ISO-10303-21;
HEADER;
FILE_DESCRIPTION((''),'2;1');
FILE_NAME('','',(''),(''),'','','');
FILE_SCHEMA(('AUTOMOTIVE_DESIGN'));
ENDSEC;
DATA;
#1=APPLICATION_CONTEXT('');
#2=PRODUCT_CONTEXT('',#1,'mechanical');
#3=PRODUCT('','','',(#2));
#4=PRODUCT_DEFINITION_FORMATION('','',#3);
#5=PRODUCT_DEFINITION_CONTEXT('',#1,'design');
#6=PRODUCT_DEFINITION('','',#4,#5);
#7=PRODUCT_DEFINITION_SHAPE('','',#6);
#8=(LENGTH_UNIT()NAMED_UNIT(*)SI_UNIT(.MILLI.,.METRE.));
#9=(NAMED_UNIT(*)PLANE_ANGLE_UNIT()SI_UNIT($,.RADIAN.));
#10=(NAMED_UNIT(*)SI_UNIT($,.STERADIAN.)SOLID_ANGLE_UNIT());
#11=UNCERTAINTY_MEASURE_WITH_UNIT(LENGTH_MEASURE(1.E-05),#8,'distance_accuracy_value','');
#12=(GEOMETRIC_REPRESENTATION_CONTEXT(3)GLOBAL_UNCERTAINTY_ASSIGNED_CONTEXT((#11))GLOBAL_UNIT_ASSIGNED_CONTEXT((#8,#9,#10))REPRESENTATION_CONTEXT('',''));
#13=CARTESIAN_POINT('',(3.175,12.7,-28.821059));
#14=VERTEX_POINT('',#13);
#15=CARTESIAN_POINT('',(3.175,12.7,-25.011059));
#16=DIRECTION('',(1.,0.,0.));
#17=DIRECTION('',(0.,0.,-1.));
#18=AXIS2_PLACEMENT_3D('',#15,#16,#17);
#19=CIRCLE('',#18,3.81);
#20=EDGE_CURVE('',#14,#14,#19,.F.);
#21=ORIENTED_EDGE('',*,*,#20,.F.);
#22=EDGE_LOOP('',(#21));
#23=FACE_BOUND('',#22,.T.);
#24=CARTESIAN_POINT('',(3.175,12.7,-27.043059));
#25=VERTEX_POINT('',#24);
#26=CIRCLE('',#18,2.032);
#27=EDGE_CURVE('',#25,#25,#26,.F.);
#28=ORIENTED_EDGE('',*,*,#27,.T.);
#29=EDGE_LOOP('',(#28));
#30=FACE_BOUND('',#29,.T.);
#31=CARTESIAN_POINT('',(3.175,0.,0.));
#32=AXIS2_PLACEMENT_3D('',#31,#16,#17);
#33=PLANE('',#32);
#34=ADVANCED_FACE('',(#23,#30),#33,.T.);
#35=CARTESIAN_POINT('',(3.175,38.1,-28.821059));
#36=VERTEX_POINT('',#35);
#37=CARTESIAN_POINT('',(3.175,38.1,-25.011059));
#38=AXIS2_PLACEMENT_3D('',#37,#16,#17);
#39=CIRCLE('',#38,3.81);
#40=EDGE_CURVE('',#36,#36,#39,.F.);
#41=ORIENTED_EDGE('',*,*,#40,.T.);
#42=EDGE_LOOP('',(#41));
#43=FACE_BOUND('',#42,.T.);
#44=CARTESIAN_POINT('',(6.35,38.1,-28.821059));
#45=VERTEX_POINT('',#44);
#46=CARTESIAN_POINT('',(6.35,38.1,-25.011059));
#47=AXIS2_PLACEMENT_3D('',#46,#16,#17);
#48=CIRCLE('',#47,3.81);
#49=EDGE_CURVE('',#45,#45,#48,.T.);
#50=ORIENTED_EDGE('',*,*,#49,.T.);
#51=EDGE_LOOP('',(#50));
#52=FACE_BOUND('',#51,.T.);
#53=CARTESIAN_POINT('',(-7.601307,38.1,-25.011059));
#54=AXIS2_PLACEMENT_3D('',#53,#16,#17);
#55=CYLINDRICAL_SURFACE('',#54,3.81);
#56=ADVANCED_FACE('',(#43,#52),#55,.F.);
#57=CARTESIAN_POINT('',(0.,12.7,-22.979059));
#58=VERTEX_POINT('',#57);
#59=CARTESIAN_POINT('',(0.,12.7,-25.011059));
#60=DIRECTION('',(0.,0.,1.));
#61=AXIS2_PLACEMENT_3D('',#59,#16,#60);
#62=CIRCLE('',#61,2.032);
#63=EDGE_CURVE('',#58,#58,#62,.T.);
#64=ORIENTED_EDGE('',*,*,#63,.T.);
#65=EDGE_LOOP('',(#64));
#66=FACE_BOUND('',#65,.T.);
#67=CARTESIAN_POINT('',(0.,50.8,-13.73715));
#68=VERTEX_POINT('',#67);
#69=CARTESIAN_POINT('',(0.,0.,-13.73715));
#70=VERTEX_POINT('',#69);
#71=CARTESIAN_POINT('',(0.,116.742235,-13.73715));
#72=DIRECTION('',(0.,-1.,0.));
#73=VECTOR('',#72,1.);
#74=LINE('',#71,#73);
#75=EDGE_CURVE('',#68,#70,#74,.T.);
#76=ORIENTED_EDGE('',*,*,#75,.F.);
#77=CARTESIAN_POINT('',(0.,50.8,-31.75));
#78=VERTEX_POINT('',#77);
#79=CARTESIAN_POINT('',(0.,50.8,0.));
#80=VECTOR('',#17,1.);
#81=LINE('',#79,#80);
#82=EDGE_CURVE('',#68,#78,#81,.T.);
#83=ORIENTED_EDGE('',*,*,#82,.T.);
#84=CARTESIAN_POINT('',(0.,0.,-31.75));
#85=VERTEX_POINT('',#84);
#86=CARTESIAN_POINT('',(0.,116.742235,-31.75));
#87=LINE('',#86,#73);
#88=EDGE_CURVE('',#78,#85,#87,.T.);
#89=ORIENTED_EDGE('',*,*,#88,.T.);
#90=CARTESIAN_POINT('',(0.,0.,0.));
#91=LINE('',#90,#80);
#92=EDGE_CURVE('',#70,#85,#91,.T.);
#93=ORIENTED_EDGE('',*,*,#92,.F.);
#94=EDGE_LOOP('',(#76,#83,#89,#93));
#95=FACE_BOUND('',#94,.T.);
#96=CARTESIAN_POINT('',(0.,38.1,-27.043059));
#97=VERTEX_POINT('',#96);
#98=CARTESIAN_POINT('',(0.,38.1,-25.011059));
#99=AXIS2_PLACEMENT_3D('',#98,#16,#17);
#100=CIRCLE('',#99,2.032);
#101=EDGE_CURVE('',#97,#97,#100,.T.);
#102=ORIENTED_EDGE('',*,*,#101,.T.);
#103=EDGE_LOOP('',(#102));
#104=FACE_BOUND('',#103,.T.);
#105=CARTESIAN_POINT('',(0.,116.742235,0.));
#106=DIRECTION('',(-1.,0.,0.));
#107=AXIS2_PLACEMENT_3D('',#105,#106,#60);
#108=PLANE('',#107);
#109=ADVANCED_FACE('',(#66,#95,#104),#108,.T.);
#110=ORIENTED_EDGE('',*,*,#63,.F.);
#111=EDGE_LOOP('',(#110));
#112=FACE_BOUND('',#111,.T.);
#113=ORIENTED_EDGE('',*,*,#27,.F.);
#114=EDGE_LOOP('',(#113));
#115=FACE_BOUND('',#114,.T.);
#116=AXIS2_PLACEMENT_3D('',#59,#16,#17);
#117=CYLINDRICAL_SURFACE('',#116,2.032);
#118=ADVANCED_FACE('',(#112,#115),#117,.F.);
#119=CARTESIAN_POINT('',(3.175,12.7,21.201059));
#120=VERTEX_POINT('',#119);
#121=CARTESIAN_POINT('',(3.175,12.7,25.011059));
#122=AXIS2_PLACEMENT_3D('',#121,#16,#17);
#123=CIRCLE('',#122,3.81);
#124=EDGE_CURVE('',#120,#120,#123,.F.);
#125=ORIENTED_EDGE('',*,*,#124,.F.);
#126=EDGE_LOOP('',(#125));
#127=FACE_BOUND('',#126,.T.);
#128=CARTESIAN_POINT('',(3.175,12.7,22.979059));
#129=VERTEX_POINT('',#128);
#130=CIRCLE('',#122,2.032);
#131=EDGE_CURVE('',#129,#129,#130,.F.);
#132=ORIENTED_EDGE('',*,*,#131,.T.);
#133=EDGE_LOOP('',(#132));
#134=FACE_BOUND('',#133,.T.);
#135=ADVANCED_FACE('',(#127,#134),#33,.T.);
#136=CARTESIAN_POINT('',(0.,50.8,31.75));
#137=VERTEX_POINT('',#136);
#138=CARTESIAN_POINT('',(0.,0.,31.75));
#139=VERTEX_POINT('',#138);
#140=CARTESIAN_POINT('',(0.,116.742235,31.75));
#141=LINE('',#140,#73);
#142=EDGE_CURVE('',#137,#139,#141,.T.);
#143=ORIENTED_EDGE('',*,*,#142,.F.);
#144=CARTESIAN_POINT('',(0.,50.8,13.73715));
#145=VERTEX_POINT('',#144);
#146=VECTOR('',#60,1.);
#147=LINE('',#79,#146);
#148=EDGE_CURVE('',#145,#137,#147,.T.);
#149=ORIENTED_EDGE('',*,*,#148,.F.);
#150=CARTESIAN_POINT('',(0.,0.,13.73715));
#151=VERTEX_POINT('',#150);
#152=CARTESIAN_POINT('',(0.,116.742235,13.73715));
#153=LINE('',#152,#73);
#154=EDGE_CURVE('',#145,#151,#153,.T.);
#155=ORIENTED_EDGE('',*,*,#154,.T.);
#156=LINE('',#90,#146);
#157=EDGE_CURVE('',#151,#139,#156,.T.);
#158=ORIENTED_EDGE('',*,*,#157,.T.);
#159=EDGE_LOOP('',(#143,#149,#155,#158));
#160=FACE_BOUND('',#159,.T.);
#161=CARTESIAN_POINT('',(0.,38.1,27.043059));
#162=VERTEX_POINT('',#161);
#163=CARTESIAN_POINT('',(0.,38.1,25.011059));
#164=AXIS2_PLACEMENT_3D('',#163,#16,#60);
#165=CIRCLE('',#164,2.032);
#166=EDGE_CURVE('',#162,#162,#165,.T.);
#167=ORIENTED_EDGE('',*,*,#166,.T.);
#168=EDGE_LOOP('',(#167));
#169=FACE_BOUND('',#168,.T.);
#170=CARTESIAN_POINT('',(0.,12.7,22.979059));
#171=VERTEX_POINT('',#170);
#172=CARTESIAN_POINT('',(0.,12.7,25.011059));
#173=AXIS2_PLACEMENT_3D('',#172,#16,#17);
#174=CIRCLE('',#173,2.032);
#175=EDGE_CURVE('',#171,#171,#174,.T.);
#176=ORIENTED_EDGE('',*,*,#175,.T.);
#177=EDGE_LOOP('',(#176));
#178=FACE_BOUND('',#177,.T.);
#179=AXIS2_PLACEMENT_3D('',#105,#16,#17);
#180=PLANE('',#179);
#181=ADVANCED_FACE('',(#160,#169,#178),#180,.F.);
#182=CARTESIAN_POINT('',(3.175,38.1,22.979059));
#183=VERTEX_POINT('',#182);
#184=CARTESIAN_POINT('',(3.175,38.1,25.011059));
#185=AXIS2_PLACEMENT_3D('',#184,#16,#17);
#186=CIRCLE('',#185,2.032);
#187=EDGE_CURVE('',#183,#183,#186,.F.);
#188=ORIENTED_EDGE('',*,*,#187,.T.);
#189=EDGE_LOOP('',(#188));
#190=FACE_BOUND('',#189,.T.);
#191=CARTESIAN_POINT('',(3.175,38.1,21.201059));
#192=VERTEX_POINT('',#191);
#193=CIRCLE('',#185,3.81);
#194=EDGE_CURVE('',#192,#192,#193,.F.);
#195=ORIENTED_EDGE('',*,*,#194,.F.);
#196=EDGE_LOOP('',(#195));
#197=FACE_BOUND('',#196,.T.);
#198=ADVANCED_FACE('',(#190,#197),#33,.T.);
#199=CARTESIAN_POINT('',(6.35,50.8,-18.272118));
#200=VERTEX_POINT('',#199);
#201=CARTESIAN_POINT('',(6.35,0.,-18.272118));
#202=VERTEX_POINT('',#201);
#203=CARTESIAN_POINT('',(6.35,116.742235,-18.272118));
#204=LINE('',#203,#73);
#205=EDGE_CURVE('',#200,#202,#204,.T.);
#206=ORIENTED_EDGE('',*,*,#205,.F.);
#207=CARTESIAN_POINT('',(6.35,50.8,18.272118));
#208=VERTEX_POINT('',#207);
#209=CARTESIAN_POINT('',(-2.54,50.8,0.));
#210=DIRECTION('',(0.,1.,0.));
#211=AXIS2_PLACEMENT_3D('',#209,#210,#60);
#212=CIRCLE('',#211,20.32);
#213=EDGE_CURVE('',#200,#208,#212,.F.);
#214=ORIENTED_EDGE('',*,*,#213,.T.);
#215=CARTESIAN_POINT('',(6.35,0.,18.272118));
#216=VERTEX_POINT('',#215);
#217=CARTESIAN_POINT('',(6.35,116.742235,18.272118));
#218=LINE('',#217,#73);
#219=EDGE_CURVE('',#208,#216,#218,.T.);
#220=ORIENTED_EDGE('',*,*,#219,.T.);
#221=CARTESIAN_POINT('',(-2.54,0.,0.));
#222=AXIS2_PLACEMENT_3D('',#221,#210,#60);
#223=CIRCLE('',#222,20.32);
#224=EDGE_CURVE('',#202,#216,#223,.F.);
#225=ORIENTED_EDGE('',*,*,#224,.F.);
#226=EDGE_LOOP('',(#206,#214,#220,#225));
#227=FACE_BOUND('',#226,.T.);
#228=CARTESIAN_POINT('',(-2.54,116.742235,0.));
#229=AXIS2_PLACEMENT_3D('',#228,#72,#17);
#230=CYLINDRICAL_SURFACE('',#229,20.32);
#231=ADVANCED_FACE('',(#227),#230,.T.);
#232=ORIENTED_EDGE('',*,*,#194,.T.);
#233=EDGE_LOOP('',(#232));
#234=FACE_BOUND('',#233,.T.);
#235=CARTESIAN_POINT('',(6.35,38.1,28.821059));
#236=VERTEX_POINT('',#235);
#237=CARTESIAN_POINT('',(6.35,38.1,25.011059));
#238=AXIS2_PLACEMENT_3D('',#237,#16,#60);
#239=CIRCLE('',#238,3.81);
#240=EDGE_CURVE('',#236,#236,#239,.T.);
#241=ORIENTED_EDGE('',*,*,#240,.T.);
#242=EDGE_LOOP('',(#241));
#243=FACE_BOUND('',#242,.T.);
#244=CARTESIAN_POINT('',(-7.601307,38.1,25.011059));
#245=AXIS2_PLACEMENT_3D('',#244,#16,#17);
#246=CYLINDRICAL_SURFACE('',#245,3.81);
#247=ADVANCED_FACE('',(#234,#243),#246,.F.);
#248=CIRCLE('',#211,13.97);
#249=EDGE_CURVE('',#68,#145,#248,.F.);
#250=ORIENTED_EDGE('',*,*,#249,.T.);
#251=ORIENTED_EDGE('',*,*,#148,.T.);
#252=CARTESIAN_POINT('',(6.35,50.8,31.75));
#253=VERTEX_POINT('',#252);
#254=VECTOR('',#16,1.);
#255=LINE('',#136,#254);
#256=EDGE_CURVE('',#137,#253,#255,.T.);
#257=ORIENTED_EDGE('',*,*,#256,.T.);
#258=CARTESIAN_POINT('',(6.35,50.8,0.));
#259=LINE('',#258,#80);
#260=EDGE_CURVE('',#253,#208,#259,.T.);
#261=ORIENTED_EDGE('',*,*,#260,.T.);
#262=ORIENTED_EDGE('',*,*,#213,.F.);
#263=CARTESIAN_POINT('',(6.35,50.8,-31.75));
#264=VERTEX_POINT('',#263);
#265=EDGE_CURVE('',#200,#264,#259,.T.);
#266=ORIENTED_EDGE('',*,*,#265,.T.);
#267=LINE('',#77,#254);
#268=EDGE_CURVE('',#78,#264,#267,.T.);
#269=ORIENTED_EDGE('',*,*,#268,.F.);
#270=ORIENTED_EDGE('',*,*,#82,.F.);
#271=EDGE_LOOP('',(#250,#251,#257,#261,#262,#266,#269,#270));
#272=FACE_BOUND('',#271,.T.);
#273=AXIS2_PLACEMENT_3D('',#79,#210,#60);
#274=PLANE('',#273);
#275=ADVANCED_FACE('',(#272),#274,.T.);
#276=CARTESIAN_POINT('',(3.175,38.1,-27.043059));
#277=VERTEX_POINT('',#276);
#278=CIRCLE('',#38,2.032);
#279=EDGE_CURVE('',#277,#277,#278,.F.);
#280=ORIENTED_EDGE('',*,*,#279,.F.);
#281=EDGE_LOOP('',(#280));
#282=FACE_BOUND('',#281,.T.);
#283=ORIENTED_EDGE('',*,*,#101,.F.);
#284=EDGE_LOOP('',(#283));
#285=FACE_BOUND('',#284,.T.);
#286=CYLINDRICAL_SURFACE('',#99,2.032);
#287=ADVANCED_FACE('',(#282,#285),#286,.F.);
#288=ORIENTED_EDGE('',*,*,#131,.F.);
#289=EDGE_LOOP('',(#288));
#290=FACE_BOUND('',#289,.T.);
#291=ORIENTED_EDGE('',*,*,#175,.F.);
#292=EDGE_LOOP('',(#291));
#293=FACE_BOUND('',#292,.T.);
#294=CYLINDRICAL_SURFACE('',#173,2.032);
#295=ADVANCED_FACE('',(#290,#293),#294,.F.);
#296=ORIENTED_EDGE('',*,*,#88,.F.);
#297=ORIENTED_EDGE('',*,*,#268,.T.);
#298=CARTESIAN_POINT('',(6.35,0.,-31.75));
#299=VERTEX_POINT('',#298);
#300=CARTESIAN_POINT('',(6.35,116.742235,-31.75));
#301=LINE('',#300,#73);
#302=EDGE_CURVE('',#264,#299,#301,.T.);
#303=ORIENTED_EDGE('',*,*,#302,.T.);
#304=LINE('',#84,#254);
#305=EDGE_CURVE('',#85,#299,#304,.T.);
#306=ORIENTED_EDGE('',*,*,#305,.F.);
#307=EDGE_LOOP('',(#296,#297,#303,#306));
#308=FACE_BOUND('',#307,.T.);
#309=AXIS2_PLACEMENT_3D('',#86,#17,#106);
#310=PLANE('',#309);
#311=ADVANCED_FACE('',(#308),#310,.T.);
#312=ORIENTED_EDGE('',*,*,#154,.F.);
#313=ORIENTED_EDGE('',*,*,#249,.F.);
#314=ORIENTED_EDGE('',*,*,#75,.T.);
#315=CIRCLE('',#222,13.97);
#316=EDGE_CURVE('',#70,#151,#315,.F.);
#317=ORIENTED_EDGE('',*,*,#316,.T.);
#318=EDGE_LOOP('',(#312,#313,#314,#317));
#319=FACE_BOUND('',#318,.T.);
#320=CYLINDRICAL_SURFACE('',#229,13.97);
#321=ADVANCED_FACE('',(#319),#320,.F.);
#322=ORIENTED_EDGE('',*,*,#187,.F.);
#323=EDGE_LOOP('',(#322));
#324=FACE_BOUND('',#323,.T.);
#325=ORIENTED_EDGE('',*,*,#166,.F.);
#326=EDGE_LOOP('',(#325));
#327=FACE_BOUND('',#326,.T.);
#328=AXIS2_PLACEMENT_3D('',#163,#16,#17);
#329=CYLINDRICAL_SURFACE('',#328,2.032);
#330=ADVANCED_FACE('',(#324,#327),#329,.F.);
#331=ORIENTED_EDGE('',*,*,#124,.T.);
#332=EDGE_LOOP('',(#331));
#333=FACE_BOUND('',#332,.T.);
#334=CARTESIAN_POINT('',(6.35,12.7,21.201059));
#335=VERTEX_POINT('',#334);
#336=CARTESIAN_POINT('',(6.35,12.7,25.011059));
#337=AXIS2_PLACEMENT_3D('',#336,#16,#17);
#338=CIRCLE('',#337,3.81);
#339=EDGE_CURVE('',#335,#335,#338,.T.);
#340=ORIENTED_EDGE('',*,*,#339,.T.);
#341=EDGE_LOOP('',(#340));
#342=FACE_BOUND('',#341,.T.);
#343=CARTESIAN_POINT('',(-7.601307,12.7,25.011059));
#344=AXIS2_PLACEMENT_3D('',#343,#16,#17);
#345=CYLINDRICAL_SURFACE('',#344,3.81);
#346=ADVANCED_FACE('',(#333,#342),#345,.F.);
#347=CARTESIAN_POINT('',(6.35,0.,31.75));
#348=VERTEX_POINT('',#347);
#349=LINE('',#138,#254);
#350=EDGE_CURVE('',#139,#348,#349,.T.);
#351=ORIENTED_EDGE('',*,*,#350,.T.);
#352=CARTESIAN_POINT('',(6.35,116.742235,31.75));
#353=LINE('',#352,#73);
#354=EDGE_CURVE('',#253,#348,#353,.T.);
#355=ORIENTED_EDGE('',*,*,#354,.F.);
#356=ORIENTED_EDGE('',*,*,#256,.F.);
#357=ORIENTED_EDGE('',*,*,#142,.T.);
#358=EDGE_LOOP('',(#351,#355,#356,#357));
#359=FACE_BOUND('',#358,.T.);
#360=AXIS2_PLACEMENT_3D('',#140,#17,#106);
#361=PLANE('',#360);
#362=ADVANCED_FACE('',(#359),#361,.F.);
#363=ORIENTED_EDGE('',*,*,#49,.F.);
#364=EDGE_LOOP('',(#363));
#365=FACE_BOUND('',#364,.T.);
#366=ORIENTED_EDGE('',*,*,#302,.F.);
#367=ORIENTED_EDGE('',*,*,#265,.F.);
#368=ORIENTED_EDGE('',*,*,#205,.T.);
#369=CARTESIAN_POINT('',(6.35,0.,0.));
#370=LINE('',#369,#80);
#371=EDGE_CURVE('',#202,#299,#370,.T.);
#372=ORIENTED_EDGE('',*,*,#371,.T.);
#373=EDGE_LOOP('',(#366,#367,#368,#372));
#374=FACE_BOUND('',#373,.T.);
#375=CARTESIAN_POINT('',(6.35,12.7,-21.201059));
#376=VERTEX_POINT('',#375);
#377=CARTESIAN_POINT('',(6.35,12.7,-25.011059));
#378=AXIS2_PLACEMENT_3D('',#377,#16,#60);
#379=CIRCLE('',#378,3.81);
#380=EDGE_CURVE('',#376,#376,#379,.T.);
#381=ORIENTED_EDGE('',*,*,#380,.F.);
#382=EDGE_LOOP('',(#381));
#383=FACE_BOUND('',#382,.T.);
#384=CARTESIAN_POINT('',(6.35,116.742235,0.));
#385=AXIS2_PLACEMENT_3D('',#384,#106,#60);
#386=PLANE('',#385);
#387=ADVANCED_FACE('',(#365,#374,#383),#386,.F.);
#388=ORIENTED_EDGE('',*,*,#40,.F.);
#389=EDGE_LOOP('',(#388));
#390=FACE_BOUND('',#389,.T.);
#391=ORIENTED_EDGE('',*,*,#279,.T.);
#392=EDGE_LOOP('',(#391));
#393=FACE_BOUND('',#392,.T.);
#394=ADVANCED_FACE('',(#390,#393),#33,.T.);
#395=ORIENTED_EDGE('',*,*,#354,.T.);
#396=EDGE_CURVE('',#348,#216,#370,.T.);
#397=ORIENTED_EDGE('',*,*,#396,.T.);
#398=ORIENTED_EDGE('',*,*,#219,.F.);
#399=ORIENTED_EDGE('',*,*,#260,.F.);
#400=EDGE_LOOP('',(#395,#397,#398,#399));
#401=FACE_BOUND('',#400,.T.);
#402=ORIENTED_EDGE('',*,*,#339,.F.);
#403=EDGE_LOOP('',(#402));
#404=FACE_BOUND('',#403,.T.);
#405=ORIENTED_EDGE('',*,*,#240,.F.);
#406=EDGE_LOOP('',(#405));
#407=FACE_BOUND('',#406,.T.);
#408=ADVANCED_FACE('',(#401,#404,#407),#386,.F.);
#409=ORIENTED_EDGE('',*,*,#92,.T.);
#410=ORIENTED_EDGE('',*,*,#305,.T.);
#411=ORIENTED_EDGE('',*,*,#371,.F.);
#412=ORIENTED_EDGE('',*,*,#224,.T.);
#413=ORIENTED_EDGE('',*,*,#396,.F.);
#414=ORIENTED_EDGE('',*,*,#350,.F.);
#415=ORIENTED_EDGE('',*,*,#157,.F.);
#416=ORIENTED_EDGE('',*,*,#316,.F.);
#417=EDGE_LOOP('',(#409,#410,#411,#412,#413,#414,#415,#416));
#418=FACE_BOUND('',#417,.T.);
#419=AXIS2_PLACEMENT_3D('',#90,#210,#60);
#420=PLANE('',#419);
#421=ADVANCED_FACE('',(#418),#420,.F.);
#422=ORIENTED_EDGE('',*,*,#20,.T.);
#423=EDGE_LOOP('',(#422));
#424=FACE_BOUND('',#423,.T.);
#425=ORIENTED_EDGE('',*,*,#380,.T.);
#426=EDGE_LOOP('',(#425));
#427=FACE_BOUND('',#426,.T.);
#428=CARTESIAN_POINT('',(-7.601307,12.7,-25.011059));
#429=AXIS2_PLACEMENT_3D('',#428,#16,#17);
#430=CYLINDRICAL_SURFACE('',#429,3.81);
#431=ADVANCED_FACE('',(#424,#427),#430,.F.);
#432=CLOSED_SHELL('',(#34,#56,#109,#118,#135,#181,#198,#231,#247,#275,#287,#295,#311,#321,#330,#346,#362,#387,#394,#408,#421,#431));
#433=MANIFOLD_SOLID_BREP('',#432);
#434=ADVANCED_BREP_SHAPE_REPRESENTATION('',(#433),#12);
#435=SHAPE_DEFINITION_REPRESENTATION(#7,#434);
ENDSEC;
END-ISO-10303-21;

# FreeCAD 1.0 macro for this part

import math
import FreeCAD as App
import Part
import Sketcher

V = App.Vector
Q = App.Units.Quantity

doc = App.newDocument("Part")
body = doc.addObject("PartDesign::Body", "Body")

# Sketch on XZ plane
sketch1 = body.newObject("Sketcher::SketchObject", "Sketch")
sketch1.AttachmentSupport = (doc.getObject("XZ_Plane"), [""])
sketch1.MapMode = "FlatFace"
sketch1.addGeometry(Part.ArcOfCircle(Part.Circle(V(-2.54, 0, 0), V(0, 0, 1), 20.32), math.radians(-64.05552), math.radians(64.05552)), False)
sketch1.addGeometry(Part.LineSegment(V(6.35, -18.272118, 0), V(6.35, -31.75, 0)), False)
sketch1.addGeometry(Part.LineSegment(V(6.35, -31.75, 0), V(0, -31.75, 0)), False)
sketch1.addGeometry(Part.LineSegment(V(0, -31.75, 0), V(0, -13.73715, 0)), False)
sketch1.addGeometry(Part.ArcOfCircle(Part.Circle(V(-2.54, 0, 0), V(0, 0, 1), 13.97), math.radians(-79.524318), math.radians(79.524318)), False)
sketch1.addGeometry(Part.LineSegment(V(0, 13.73715, 0), V(0, 31.75, 0)), False)
sketch1.addGeometry(Part.LineSegment(V(0, 31.75, 0), V(6.35, 31.75, 0)), False)
sketch1.addGeometry(Part.LineSegment(V(6.35, 31.75, 0), V(6.35, 18.272118, 0)), False)
sketch1.addConstraint(Sketcher.Constraint("Coincident", 0, 1, 1, 1))
sketch1.addConstraint(Sketcher.Constraint("Coincident", 1, 2, 2, 1))
sketch1.addConstraint(Sketcher.Constraint("Coincident", 2, 2, 3, 1))
sketch1.addConstraint(Sketcher.Constraint("Coincident", 3, 2, 4, 1))
sketch1.addConstraint(Sketcher.Constraint("Coincident", 4, 2, 5, 1))
sketch1.addConstraint(Sketcher.Constraint("Coincident", 5, 2, 6, 1))
sketch1.addConstraint(Sketcher.Constraint("Coincident", 6, 2, 7, 1))
sketch1.addConstraint(Sketcher.Constraint("Coincident", 7, 2, 0, 2))
sketch1.addConstraint(Sketcher.Constraint("Vertical", 1))
sketch1.addConstraint(Sketcher.Constraint("Horizontal", 2))
sketch1.addConstraint(Sketcher.Constraint("Vertical", 3))
sketch1.addConstraint(Sketcher.Constraint("Vertical", 5))
sketch1.addConstraint(Sketcher.Constraint("Horizontal", 6))
sketch1.addConstraint(Sketcher.Constraint("Vertical", 7))
sketch1.addConstraint(Sketcher.Constraint("Coincident", 4, 3, 0, 3))
sketch1.addConstraint(Sketcher.Constraint("Symmetric", 3, 2, 4, 2, -1, 1))
sketch1.addConstraint(Sketcher.Constraint("Symmetric", 2, 2, 5, 2, -1))
sketch1.addConstraint(Sketcher.Constraint("Vertical", 1, 2, 6, 2))
sketch1.addConstraint(Sketcher.Constraint("Radius", 0, Q("0.8 in")))
sketch1.addConstraint(Sketcher.Constraint("Radius", 4, Q("0.55 in")))
sketch1.addConstraint(Sketcher.Constraint("DistanceX", 2, 2, 2, 1, Q("0.25 in")))
sketch1.addConstraint(Sketcher.Constraint("DistanceX", 0, 3, -1, 1, Q("0.1 in")))
sketch1.addConstraint(Sketcher.Constraint("DistanceY", 1, 2, -1, 1, Q("1.25 in")))
pad1 = body.newObject("PartDesign::Pad", "Pad")
pad1.Profile = sketch1
pad1.Length = Q("2 in")
pad1.Reversed = True

# Sketch on YZ plane
sketch2 = body.newObject("Sketcher::SketchObject", "Sketch001")
sketch2.AttachmentSupport = (doc.getObject("YZ_Plane"), [""])
sketch2.MapMode = "FlatFace"
sketch2.AttachmentOffset = App.Placement(V(0, 0, 0.25 * 25.4), App.Rotation())
sketch2.addGeometry(Part.Circle(V(38.1, -25.011059, 0), V(0, 0, 1), 2.032), False)
sketch2.addGeometry(Part.Circle(V(12.7, -25.011059, 0), V(0, 0, 1), 2.032), False)
sketch2.addGeometry(Part.Circle(V(12.7, 25.011059, 0), V(0, 0, 1), 2.032), False)
sketch2.addGeometry(Part.Circle(V(38.1, 25.011059, 0), V(0, 0, 1), 2.032), False)
sketch2.addConstraint(Sketcher.Constraint("Equal", 0, 1))
sketch2.addConstraint(Sketcher.Constraint("Equal", 1, 2))
sketch2.addConstraint(Sketcher.Constraint("Equal", 2, 3))
sketch2.addConstraint(Sketcher.Constraint("Symmetric", 1, 3, 2, 3, -1))
sketch2.addConstraint(Sketcher.Constraint("Symmetric", 0, 3, 3, 3, -1))
sketch2.addConstraint(Sketcher.Constraint("Horizontal", 0, 3, 1, 3))
sketch2.addConstraint(Sketcher.Constraint("Diameter", 0, Q("0.16 in")))
sketch2.addConstraint(Sketcher.Constraint("DistanceX", 1, 3, 0, 3, Q("1 in")))
sketch2.addConstraint(Sketcher.Constraint("DistanceX", -1, 1, 0, 3, Q("1.5 in")))
sketch2.addConstraint(Sketcher.Constraint("DistanceY", 0, 3, -1, 1, Q("25.011059 mm")))
pocket1 = body.newObject("PartDesign::Pocket", "Pocket")
pocket1.Profile = sketch2
pocket1.Type = "ThroughAll"
pocket1.Midplane = True

# Sketch on YZ plane
sketch3 = body.newObject("Sketcher::SketchObject", "Sketch002")
sketch3.AttachmentSupport = (doc.getObject("YZ_Plane"), [""])
sketch3.MapMode = "FlatFace"
sketch3.AttachmentOffset = App.Placement(V(0, 0, 0.125 * 25.4), App.Rotation())
sketch3.addGeometry(Part.Circle(V(38.1, -25.011059, 0), V(0, 0, 1), 3.81), False)
sketch3.addGeometry(Part.Circle(V(12.7, -25.011059, 0), V(0, 0, 1), 3.81), False)
sketch3.addGeometry(Part.Circle(V(38.1, 25.011059, 0), V(0, 0, 1), 3.81), False)
sketch3.addGeometry(Part.Circle(V(12.7, 25.011059, 0), V(0, 0, 1), 3.81), False)
sketch3.addConstraint(Sketcher.Constraint("Equal", 0, 1))
sketch3.addConstraint(Sketcher.Constraint("Equal", 1, 2))
sketch3.addConstraint(Sketcher.Constraint("Equal", 2, 3))
sketch3.addConstraint(Sketcher.Constraint("Symmetric", 0, 3, 2, 3, -1))
sketch3.addConstraint(Sketcher.Constraint("Symmetric", 1, 3, 3, 3, -1))
sketch3.addConstraint(Sketcher.Constraint("Horizontal", 0, 3, 1, 3))
sketch3.addConstraint(Sketcher.Constraint("Diameter", 0, Q("0.3 in")))
sketch3.addConstraint(Sketcher.Constraint("DistanceX", 1, 3, 0, 3, Q("1 in")))
sketch3.addConstraint(Sketcher.Constraint("DistanceX", -1, 1, 0, 3, Q("1.5 in")))
sketch3.addConstraint(Sketcher.Constraint("DistanceY", 0, 3, -1, 1, Q("25.011059 mm")))
pocket2 = body.newObject("PartDesign::Pocket", "Pocket001")
pocket2.Profile = sketch3
pocket2.Length = Q("0.125 in")
pocket2.Reversed = True

doc.recompute()
